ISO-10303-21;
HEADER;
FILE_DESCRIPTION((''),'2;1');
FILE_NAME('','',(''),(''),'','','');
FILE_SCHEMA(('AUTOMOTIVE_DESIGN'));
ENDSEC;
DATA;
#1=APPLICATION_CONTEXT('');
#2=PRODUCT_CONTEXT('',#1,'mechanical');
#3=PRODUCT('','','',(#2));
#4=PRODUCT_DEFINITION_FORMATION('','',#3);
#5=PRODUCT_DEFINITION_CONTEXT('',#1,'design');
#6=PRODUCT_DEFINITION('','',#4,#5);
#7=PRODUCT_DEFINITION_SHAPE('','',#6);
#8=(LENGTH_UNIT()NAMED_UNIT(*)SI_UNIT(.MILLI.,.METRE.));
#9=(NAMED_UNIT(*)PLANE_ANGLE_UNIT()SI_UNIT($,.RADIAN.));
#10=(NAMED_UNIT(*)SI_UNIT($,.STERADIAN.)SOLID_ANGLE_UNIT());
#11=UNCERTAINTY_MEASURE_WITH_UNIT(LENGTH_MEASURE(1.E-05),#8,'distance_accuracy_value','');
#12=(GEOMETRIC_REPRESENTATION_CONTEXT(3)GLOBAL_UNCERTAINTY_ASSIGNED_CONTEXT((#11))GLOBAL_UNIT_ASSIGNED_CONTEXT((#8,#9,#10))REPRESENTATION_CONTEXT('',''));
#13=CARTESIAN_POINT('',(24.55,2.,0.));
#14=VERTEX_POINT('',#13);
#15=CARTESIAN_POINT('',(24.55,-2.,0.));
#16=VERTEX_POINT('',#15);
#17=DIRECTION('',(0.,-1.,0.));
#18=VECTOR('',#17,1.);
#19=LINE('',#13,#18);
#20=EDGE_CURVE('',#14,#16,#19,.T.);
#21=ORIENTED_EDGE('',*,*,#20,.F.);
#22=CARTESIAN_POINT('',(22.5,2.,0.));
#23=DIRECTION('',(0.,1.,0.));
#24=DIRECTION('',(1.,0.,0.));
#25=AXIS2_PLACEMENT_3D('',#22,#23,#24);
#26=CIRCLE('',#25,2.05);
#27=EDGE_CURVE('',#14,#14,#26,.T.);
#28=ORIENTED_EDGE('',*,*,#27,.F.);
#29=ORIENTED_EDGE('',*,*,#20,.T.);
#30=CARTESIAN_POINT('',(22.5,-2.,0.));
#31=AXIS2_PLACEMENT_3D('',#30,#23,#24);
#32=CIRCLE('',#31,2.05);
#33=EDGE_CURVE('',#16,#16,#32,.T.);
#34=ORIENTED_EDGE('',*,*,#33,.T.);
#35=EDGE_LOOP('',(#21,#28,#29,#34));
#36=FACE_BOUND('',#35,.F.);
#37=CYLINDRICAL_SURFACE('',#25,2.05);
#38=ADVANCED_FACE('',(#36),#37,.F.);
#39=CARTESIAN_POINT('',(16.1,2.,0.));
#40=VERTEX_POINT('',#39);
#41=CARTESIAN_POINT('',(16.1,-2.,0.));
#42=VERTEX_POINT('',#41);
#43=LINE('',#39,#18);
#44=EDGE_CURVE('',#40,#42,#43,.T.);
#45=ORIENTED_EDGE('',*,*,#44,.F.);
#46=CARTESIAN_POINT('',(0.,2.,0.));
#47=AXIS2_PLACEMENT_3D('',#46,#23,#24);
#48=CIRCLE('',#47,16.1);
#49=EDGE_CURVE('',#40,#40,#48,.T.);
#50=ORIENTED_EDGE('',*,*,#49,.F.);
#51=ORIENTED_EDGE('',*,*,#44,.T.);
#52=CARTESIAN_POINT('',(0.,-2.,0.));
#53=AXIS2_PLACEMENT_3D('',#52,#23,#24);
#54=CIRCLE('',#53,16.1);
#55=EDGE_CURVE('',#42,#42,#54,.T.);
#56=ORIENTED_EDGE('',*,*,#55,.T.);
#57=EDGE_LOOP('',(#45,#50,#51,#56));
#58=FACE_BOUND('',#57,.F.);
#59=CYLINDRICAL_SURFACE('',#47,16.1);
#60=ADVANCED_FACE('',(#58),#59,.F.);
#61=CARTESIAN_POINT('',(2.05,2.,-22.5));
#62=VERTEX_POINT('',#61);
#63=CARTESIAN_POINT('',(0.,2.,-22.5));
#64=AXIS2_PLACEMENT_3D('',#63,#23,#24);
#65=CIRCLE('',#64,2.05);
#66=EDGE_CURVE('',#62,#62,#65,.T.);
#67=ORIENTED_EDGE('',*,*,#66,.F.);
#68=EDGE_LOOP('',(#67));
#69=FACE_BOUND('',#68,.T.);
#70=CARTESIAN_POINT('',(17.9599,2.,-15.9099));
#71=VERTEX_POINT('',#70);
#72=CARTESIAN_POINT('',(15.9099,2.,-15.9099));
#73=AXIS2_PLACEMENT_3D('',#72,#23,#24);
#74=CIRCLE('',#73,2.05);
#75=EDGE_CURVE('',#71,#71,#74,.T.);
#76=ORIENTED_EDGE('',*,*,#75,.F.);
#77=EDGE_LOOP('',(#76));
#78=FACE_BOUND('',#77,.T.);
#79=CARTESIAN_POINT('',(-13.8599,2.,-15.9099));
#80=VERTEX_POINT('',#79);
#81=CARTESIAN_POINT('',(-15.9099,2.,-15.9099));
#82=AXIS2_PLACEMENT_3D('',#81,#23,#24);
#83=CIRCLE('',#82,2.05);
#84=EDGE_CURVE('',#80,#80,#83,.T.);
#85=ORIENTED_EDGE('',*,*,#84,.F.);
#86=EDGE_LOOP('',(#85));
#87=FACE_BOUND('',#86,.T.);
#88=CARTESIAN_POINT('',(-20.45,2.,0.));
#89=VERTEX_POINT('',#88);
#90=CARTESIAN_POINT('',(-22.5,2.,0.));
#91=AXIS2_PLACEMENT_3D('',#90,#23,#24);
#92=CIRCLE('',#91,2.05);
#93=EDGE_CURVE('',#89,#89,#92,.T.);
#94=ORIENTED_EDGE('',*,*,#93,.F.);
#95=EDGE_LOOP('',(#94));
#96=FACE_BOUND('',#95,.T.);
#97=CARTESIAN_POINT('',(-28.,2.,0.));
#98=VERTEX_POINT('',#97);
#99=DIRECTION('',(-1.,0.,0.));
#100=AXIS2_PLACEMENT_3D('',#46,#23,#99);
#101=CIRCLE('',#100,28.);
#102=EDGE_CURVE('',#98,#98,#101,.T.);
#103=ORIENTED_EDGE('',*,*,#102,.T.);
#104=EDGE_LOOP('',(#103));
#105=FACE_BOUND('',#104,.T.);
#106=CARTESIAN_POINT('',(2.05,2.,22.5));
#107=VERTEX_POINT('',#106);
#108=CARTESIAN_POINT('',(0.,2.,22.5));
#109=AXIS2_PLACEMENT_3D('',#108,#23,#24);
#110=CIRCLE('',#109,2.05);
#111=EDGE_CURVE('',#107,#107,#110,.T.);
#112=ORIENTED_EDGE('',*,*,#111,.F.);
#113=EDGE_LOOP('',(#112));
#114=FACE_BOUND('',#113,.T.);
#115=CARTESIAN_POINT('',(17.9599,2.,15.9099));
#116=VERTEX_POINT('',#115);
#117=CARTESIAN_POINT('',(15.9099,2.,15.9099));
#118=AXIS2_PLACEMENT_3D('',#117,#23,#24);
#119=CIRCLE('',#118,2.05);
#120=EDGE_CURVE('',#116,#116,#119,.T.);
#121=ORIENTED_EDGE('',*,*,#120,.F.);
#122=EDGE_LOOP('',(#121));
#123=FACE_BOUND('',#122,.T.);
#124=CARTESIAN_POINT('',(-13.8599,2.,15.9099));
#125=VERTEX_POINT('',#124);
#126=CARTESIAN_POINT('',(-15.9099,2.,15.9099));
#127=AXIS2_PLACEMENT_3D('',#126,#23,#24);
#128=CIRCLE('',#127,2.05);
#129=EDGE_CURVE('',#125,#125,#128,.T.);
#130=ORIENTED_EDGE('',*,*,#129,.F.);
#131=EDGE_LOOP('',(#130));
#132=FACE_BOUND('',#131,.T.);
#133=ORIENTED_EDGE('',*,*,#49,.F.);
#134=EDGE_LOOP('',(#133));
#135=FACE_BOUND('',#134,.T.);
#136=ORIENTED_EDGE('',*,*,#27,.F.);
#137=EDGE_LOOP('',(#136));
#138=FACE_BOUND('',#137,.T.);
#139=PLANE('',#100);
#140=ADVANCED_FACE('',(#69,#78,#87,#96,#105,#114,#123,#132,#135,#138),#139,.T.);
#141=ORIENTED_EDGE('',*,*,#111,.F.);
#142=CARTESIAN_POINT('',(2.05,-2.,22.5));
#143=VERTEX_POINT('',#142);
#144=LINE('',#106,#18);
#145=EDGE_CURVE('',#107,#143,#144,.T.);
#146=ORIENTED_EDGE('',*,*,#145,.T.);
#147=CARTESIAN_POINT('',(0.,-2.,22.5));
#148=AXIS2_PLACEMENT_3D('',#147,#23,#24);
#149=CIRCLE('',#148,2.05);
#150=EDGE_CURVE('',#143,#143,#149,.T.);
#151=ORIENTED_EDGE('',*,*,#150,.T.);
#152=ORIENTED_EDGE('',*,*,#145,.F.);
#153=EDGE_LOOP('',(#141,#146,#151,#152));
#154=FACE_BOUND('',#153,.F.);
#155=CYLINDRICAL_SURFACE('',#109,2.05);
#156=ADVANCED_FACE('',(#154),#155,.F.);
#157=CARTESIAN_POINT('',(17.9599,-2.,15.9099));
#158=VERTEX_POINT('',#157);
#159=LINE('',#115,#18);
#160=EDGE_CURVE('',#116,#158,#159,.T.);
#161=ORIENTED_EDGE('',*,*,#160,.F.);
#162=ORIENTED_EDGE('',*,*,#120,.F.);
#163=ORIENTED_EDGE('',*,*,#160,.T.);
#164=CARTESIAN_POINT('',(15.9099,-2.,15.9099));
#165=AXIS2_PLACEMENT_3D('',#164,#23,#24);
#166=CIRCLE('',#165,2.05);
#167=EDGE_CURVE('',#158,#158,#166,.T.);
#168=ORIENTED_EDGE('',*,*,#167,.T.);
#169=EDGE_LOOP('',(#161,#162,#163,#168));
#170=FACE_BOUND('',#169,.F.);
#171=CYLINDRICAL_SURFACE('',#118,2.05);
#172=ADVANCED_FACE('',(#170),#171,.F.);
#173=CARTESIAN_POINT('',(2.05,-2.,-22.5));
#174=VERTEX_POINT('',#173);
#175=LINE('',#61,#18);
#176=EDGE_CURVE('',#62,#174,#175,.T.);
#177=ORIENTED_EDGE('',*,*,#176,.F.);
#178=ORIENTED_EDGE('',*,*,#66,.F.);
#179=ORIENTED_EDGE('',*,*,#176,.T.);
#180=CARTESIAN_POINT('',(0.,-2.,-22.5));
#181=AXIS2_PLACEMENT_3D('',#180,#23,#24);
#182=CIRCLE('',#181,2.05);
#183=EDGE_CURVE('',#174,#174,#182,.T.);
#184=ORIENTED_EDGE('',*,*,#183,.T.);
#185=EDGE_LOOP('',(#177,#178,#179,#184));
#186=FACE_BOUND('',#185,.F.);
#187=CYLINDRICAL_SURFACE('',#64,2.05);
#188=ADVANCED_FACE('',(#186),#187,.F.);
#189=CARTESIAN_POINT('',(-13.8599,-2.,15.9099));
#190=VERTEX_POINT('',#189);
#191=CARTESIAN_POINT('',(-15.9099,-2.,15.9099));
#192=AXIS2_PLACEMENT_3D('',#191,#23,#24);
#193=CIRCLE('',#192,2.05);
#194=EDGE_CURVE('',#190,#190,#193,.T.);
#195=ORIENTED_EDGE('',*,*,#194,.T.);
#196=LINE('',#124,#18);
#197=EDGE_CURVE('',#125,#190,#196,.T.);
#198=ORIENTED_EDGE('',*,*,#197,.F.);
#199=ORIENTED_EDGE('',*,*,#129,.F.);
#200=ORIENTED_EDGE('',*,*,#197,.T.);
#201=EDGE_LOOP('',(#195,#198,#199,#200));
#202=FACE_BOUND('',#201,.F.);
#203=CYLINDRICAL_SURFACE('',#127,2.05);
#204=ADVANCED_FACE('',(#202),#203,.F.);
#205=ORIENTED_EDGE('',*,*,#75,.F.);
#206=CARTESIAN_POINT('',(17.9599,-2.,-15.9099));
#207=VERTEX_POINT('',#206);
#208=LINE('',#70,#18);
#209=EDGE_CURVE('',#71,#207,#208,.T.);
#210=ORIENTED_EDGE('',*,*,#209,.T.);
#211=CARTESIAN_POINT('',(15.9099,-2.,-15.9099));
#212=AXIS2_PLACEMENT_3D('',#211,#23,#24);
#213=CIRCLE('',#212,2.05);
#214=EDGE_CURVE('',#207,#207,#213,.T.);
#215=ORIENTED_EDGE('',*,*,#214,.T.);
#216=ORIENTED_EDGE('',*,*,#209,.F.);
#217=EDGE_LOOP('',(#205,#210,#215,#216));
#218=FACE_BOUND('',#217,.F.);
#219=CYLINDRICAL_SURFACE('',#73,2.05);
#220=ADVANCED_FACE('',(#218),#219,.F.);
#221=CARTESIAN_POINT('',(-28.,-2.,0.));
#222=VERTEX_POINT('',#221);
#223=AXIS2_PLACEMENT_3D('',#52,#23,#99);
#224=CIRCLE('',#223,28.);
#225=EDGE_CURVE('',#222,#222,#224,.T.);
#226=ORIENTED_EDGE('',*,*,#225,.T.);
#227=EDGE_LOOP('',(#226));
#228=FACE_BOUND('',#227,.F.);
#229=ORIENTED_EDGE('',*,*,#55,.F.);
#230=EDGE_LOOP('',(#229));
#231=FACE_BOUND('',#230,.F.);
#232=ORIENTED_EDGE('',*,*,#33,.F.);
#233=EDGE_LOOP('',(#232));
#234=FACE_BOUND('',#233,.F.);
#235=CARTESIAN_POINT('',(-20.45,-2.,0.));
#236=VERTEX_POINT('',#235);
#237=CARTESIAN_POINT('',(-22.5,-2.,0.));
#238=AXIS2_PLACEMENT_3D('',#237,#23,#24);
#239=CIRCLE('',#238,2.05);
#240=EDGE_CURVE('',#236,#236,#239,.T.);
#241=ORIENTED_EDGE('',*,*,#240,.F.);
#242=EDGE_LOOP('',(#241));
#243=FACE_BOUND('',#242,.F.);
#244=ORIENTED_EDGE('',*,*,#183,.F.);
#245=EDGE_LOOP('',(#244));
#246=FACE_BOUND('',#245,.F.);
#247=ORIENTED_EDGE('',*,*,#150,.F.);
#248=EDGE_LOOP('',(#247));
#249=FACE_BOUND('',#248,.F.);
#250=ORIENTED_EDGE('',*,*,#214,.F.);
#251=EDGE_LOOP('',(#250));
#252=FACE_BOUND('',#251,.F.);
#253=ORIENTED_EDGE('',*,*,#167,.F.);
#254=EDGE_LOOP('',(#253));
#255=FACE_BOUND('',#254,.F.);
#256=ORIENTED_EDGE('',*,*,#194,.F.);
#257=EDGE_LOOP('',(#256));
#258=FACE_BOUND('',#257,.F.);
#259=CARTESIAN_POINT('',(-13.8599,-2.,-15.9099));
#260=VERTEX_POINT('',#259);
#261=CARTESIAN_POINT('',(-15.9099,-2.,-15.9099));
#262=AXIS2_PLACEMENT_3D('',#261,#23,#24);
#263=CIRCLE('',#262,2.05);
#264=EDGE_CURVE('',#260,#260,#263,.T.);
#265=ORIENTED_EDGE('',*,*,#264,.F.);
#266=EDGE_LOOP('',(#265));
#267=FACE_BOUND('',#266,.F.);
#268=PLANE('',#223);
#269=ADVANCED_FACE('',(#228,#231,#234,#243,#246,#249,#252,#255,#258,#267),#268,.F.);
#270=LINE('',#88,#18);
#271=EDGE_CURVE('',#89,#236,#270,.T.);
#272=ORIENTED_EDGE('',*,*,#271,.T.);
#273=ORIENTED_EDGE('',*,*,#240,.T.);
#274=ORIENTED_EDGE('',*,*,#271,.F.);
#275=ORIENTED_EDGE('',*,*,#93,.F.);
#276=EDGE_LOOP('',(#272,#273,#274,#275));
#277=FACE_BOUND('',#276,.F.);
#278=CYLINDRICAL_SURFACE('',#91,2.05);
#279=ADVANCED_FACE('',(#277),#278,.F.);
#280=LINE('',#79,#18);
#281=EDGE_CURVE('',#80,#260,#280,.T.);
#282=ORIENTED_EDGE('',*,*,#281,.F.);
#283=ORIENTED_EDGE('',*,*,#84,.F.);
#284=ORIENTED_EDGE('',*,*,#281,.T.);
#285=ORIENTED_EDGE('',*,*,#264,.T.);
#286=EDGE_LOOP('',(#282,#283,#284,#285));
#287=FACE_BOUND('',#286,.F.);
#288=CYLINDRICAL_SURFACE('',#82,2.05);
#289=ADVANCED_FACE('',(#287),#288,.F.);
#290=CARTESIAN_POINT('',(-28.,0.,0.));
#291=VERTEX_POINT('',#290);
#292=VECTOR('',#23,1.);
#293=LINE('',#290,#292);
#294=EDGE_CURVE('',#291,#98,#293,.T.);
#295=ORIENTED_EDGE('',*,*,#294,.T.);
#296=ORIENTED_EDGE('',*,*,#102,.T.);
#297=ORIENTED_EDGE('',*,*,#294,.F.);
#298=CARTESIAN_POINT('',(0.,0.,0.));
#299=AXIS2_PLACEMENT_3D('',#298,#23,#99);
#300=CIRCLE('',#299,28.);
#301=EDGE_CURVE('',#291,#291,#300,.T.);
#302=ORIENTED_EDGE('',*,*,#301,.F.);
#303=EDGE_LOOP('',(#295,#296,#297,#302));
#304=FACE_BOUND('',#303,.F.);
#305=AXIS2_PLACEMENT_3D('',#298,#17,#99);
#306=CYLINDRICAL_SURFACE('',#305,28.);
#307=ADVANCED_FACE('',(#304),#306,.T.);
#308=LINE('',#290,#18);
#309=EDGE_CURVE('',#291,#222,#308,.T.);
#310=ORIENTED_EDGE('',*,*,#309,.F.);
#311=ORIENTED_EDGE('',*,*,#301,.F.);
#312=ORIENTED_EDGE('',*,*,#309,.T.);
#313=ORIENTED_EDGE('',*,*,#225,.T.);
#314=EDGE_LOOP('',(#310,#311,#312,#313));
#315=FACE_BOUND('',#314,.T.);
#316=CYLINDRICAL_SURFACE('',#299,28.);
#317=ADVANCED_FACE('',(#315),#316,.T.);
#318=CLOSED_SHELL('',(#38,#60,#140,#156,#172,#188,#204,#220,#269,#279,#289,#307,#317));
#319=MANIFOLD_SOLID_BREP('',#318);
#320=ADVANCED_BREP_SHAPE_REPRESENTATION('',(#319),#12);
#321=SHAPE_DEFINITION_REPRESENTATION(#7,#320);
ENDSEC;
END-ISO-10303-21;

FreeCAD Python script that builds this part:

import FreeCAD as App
import Part
import Sketcher

V = App.Vector

doc = App.newDocument("Part")
params = doc.addObject("Spreadsheet::Sheet", "Params")
for row, (alias, value) in enumerate([
    ("sketch1_diameter", "56 mm"),
    ("pad1_length", "4 mm"),
    ("sketch2_diameter", "4.1 mm"),
    ("sketch3_diameter", "32.2 mm"),
], start=1):
    params.set(f"A{row}", alias)
    params.set(f"B{row}", "=" + value)
    params.setAlias(f"B{row}", alias)

body = doc.addObject("PartDesign::Body", "Body")

# Sketch on XZ plane
sketch1 = body.newObject("Sketcher::SketchObject", "Sketch")
sketch1.AttachmentSupport = (doc.getObject("XZ_Plane"), [""])
sketch1.MapMode = "FlatFace"
sketch1.addGeometry(Part.Circle(V(0, 0, 0), V(0, 0, 1), 28), False)
sketch1.addConstraint([
    Sketcher.Constraint("Coincident", 0, 3, -1, 1),
    Sketcher.Constraint("Diameter", 0, 56.0),
])
sketch1.setExpression("Constraints[1]", "Params.sketch1_diameter")
pad1 = body.newObject("PartDesign::Pad", "Pad")
pad1.Profile = sketch1
pad1.setExpression("Length", "Params.pad1_length")
pad1.Midplane = True

# Sketch on XZ plane
sketch2 = body.newObject("Sketcher::SketchObject", "Sketch001")
sketch2.AttachmentSupport = (doc.getObject("XZ_Plane"), [""])
sketch2.MapMode = "FlatFace"
sketch2.AttachmentOffset = App.Placement(V(0, 0, -2), App.Rotation())
sketch2.addGeometry([
    Part.Circle(V(0, -22.5, 0), V(0, 0, 1), 2.05),  # 0
    Part.Circle(V(-15.9099, -15.9099, 0), V(0, 0, 1), 2.05),  # 1
    Part.Circle(V(-22.5, 0, 0), V(0, 0, 1), 2.05),  # 2
    Part.Circle(V(-15.9099, 15.9099, 0), V(0, 0, 1), 2.05),  # 3
    Part.Circle(V(0, 22.5, 0), V(0, 0, 1), 2.05),  # 4
    Part.Circle(V(15.9099, 15.9099, 0), V(0, 0, 1), 2.05),  # 5
    Part.Circle(V(22.5, 0, 0), V(0, 0, 1), 2.05),  # 6
    Part.Circle(V(15.9099, -15.9099, 0), V(0, 0, 1), 2.05),  # 7
], False)
sketch2.addConstraint([
    Sketcher.Constraint("Equal", 0, 1),
    Sketcher.Constraint("Equal", 1, 2),
    Sketcher.Constraint("Equal", 2, 3),
    Sketcher.Constraint("Equal", 3, 4),
    Sketcher.Constraint("Equal", 4, 5),
    Sketcher.Constraint("Equal", 5, 6),
    Sketcher.Constraint("Equal", 6, 7),
    Sketcher.Constraint("Symmetric", 0, 3, 4, 3, -1, 1),
    Sketcher.Constraint("Symmetric", 1, 3, 5, 3, -1, 1),
    Sketcher.Constraint("Symmetric", 2, 3, 6, 3, -1, 1),
    Sketcher.Constraint("Symmetric", 3, 3, 7, 3, -1, 1),
    Sketcher.Constraint("Symmetric", 3, 3, 5, 3, -2),
    Sketcher.Constraint("PointOnObject", 0, 3, -2),
    Sketcher.Constraint("PointOnObject", 2, 3, -1),
    Sketcher.Constraint("Diameter", 0, 4.1),
    Sketcher.Constraint("DistanceY", 0, 3, -1, 1, 22.5),
    Sketcher.Constraint("DistanceX", 2, 3, -1, 1, 22.5),
    Sketcher.Constraint("DistanceX", 1, 3, -1, 1, 15.91),
    Sketcher.Constraint("DistanceY", 1, 3, -1, 1, 15.91),
])
sketch2.setExpression("Constraints[14]", "Params.sketch2_diameter")
pocket1 = body.newObject("PartDesign::Pocket", "Pocket")
pocket1.Profile = sketch2
pocket1.Type = "ThroughAll"
pocket1.Reversed = True

# Sketch on XZ plane
sketch3 = body.newObject("Sketcher::SketchObject", "Sketch002")
sketch3.AttachmentSupport = (doc.getObject("XZ_Plane"), [""])
sketch3.MapMode = "FlatFace"
sketch3.AttachmentOffset = App.Placement(V(0, 0, -2), App.Rotation())
sketch3.addGeometry(Part.Circle(V(0, 0, 0), V(0, 0, 1), 16.1), False)
sketch3.addConstraint([
    Sketcher.Constraint("Coincident", 0, 3, -1, 1),
    Sketcher.Constraint("Diameter", 0, 32.2),
])
sketch3.setExpression("Constraints[1]", "Params.sketch3_diameter")
pocket2 = body.newObject("PartDesign::Pocket", "Pocket001")
pocket2.Profile = sketch3
pocket2.Type = "ThroughAll"
pocket2.Reversed = True

doc.recompute()
